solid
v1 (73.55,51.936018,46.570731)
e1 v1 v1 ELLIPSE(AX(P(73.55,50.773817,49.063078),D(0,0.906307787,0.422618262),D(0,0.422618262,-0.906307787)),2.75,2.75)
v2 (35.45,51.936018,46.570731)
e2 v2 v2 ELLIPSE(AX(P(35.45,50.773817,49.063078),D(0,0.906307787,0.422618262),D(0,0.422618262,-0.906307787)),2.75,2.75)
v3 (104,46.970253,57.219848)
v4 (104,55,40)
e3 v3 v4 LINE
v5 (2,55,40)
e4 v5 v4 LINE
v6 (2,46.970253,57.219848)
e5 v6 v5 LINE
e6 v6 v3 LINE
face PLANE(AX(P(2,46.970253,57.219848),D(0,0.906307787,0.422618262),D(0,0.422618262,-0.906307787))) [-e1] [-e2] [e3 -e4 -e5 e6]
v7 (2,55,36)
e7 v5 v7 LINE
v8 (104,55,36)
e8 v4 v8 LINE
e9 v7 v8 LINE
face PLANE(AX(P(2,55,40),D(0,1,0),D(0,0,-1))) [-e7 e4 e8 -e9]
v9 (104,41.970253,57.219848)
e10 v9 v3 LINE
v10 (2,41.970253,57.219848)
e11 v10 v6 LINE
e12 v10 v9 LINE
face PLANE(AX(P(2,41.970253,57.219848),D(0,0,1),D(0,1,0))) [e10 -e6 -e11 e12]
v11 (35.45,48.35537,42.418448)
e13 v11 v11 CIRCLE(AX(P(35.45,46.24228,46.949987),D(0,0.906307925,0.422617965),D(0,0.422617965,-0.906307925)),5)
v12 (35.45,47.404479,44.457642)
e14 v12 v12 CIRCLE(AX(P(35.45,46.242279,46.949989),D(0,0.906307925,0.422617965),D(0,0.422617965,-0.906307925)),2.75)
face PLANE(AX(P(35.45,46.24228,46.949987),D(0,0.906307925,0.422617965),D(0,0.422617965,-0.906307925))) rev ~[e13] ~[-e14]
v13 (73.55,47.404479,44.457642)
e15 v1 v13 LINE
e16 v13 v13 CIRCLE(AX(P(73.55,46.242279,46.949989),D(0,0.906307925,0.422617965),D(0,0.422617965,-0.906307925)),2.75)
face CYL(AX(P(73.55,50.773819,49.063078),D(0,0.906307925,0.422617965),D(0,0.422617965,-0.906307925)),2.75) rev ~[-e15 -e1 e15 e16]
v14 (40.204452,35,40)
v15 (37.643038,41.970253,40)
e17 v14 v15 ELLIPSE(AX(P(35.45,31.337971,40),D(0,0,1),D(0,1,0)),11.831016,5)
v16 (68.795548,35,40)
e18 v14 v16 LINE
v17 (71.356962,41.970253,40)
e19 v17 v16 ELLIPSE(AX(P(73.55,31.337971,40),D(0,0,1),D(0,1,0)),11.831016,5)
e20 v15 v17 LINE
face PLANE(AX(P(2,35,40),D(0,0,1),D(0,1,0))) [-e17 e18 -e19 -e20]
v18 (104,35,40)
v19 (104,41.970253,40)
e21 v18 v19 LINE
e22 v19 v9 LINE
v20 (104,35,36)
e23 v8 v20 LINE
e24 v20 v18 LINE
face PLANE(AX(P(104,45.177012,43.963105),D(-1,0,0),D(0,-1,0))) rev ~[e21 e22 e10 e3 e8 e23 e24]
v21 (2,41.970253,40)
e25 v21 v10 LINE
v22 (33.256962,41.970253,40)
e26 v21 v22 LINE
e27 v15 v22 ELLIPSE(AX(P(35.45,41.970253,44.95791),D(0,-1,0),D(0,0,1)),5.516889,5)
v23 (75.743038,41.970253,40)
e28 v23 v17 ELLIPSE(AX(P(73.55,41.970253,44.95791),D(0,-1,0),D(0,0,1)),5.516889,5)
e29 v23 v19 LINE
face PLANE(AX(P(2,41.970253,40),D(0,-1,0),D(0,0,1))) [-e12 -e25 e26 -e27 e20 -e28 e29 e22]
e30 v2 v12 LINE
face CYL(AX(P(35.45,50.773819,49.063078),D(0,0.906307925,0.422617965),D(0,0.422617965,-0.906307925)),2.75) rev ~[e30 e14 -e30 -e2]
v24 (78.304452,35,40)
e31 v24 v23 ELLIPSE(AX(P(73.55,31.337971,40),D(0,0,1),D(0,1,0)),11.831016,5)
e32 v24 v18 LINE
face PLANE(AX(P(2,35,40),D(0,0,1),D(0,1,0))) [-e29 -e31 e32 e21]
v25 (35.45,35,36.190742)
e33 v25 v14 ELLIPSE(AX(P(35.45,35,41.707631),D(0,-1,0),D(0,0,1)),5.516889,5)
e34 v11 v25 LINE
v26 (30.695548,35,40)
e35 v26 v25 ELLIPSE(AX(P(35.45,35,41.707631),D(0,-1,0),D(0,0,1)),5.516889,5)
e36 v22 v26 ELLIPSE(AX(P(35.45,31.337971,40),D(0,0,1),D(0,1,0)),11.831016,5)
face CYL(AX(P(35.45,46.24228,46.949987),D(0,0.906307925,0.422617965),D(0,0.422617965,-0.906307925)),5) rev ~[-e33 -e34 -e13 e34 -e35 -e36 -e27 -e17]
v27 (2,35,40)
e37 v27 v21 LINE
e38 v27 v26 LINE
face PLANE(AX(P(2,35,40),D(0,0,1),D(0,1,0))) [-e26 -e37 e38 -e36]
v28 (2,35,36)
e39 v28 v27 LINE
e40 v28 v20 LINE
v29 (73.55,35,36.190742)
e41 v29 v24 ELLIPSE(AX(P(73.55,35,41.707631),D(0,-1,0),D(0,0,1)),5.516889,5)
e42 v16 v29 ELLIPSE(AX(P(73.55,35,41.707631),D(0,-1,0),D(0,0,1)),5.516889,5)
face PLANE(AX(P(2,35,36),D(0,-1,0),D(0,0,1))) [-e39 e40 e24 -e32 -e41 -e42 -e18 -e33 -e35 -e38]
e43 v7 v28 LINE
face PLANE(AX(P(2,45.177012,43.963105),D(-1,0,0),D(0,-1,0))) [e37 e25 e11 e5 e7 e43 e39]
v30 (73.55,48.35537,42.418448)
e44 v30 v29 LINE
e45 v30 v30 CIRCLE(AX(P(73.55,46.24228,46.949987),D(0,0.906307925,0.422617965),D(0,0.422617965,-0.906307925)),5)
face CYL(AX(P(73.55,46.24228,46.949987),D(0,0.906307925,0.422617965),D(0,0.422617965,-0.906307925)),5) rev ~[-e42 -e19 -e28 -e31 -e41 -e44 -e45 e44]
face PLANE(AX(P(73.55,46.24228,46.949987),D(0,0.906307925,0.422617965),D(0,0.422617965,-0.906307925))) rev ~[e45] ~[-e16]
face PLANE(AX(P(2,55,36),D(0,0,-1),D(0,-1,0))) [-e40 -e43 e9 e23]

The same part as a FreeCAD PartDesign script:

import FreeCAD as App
import Part
import Sketcher
Q = App.Units.Quantity


def add_polygon(sketch, points):
    """Adds a closed chain of lines whose ends are joined by coincident constraints."""
    first, n = sketch.GeometryCount, len(points)
    for a, b in zip(points, points[1:] + points[:1]):
        sketch.addGeometry(Part.LineSegment(App.Vector(*a, 0), App.Vector(*b, 0)), False)
    for i in range(n):
        sketch.addConstraint(Sketcher.Constraint("Coincident", first + i, 2, first + (i + 1) % n, 1))

doc = App.newDocument("Part")
body = doc.addObject("PartDesign::Body", "Body")

# Sketch on YZ plane
sketch1 = doc.addObject("Sketcher::SketchObject", "Sketch")
body.addObject(sketch1)
sketch1.AttachmentSupport = (doc.YZ_Plane, [""])
sketch1.MapMode = "FlatFace"
add_polygon(sketch1, [(-7, 4), (-7, 21.2), (-12, 21.2), (-20, 4), (-20, 0), (0, 0), (0, 4)])  # lines 0-6
sketch1.addConstraint([
    Sketcher.Constraint("Vertical", 0),
    Sketcher.Constraint("Horizontal", 1),
    Sketcher.Constraint("Vertical", 3),
    Sketcher.Constraint("Horizontal", 4),
    Sketcher.Constraint("Vertical", 5),
    Sketcher.Constraint("Horizontal", 6),
    Sketcher.Constraint("Coincident", 4, 2, -1, 1),
    Sketcher.Constraint("Horizontal", 2, 2, 5, 2),
    Sketcher.Constraint("DistanceX", 1, 2, 1, 1, Q("5 mm")),
    Sketcher.Constraint("DistanceX", 4, 1, 4, 2, Q("20 mm")),
    Sketcher.Constraint("DistanceY", 3, 2, 3, 1, Q("4 mm")),
    Sketcher.Constraint("Angle", 2, Q("-115 deg")),
    Sketcher.Constraint("Distance", 2, Q("19 mm")),
])
pad1 = doc.addObject("PartDesign::Pad", "Pad")
body.addObject(pad1)
pad1.Profile = sketch1
pad1.Length = 102
pad1.Reversed = True

# Sketch on an angled plane
sketch2 = doc.addObject("Sketcher::SketchObject", "Sketch001")
body.addObject(sketch2)
sketch2.Placement = App.Placement(App.Vector(0, -17.959965, 8.374869), App.Rotation(App.Vector(0, -0.422617965, -0.906307925), App.Vector(0.999999999, 0, 0), App.Vector(0, -0.906307925, 0.422617965), "ZXY"))
sketch2.addGeometry([
    Part.Circle(App.Vector(-5.2, -33.4, 0), App.Vector(0, 0, 1), 2.8),
    Part.Circle(App.Vector(-5.2, -71.5, 0), App.Vector(0, 0, 1), 2.8),
], False)
sketch2.addConstraint([
    Sketcher.Constraint("Equal", 0, 1),
    Sketcher.Constraint("Vertical", 0, 3, 1, 3),
    Sketcher.Constraint("Diameter", 0, Q("5.5 mm")),
    Sketcher.Constraint("DistanceY", 1, 3, 0, 3, Q("38.1 mm")),
    Sketcher.Constraint("DistanceY", 0, 3, -1, 1, Q("33.45 mm")),
    Sketcher.Constraint("DistanceX", 0, 3, -1, 1, Q("5.172866 mm")),
])
pocket1 = doc.addObject("PartDesign::Pocket", "Pocket")
body.addObject(pocket1)
pocket1.Profile = sketch2
pocket1.Type = "ThroughAll"

# Sketch on an angled plane
sketch3 = doc.addObject("Sketcher::SketchObject", "Sketch002")
body.addObject(sketch3)
sketch3.Placement = App.Placement(App.Vector(0, -13.428426, 6.261778), App.Rotation(App.Vector(0, -0.422617965, -0.906307925), App.Vector(0.999999999, 0, 0), App.Vector(0, -0.906307925, 0.422617965), "ZXY"))
sketch3.addGeometry([
    Part.Circle(App.Vector(-5, -33, 0), App.Vector(0, 0, 1), 5),
    Part.Circle(App.Vector(-5, -72, 0), App.Vector(0, 0, 1), 5),
], False)
sketch3.addConstraint([
    Sketcher.Constraint("Equal", 0, 1),
    Sketcher.Constraint("Vertical", 0, 3, 1, 3),
    Sketcher.Constraint("Diameter", 0, Q("10 mm")),
    Sketcher.Constraint("DistanceY", 1, 3, 0, 3, Q("38.1 mm")),
    Sketcher.Constraint("DistanceY", 0, 3, -1, 1, Q("33.45 mm")),
    Sketcher.Constraint("DistanceX", 0, 3, -1, 1, Q("5.172866 mm")),
])
pocket2 = doc.addObject("PartDesign::Pocket", "Pocket001")
body.addObject(pocket2)
pocket2.Profile = sketch3
pocket2.Type = "ThroughAll"
body2 = doc.addObject("PartDesign::Body", "Body001")
doc.recompute()

body.Placement = App.Placement(App.Vector(2, 35, 36), App.Rotation(App.Vector(0, 0, 1), 180))
boolean = doc.addObject("PartDesign::Boolean", "Boolean")
body2.addObject(boolean)
boolean.Type = "Fuse"
boolean.addObjects([body])

doc.recompute()
